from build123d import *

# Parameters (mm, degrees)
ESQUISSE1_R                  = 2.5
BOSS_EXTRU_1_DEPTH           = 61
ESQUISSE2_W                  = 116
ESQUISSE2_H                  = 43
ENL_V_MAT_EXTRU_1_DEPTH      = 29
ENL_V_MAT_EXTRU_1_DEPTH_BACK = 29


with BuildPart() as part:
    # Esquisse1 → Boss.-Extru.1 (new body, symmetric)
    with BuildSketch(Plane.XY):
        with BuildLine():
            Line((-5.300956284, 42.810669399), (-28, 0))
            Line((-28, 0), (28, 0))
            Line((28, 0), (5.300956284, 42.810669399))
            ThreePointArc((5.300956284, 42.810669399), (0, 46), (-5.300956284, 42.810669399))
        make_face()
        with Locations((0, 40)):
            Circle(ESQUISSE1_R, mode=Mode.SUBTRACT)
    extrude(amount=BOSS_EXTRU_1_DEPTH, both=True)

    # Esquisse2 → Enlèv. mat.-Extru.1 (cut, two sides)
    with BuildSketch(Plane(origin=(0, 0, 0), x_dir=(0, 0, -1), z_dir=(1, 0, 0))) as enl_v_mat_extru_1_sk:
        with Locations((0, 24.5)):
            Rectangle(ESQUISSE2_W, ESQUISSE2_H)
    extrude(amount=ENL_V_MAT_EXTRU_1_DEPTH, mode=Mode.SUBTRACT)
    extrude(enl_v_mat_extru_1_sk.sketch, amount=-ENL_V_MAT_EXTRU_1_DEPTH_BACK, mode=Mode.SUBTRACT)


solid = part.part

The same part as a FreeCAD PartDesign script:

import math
import FreeCAD as App
import Part
import Sketcher

V = App.Vector
Q = App.Units.Quantity

doc = App.newDocument("Part")
body = doc.addObject("PartDesign::Body", "Body")

# Sketch on XY plane
sketch1 = doc.addObject("Sketcher::SketchObject", "Sketch")
body.addObject(sketch1)
sketch1.AttachmentSupport = (doc.XY_Plane, [""])
sketch1.MapMode = "FlatFace"
sketch1.addGeometry([
    Part.LineSegment(V(-5.3, 42.8, 0), V(-28, 0, 0)),  # 0
    Part.LineSegment(V(-28, 0, 0), V(28, 0, 0)),  # 1
    Part.LineSegment(V(28, 0, 0), V(5.3, 42.8, 0)),  # 2
    Part.ArcOfCircle(Part.Circle(V(0, 40, 0), V(0, 0, 1), 6), math.radians(28), math.radians(152)),  # 3
    Part.Circle(V(0, 40, 0), V(0, 0, 1), 2.5),  # 4
], False)
sketch1.addConstraint([
    Sketcher.Constraint("Coincident", 0, 2, 1, 1),
    Sketcher.Constraint("Coincident", 1, 2, 2, 1),
    Sketcher.Constraint("Tangent", 2, 2, 3, 1),
    Sketcher.Constraint("Tangent", 3, 2, 0, 1),
    Sketcher.Constraint("Horizontal", 1),
    Sketcher.Constraint("Coincident", 4, 3, 3, 3),
    Sketcher.Constraint("Symmetric", 0, 2, 1, 2, -1, 1),
    Sketcher.Constraint("PointOnObject", 3, 3, -2),
    Sketcher.Constraint("Diameter", 4, Q("5 mm")),
    Sketcher.Constraint("Radius", 3, Q("6 mm")),
    Sketcher.Constraint("DistanceX", 1, 1, 1, 2, Q("56 mm")),
    Sketcher.Constraint("DistanceY", -1, 1, 3, 3, Q("40 mm")),
])
pad1 = doc.addObject("PartDesign::Pad", "Pad")
body.addObject(pad1)
pad1.Profile = sketch1
pad1.Length = 122
pad1.Midplane = True

# Sketch on YZ plane
sketch2 = doc.addObject("Sketcher::SketchObject", "Sketch001")
body.addObject(sketch2)
sketch2.AttachmentSupport = (doc.YZ_Plane, [""])
sketch2.MapMode = "FlatFace"
sketch2.addGeometry([
    Part.LineSegment(V(46, 58, 0), V(3, 58, 0)),
    Part.LineSegment(V(3, 58, 0), V(3, -58, 0)),
    Part.LineSegment(V(3, -58, 0), V(46, -58, 0)),
    Part.LineSegment(V(46, -58, 0), V(46, 58, 0)),
], False)
sketch2.addConstraint([
    Sketcher.Constraint("Coincident", 0, 2, 1, 1),
    Sketcher.Constraint("Coincident", 1, 2, 2, 1),
    Sketcher.Constraint("Coincident", 2, 2, 3, 1),
    Sketcher.Constraint("Coincident", 3, 2, 0, 1),
    Sketcher.Constraint("Horizontal", 0),
    Sketcher.Constraint("Vertical", 1),
    Sketcher.Constraint("Horizontal", 2),
    Sketcher.Constraint("Vertical", 3),
    Sketcher.Constraint("DistanceX", 0, 2, 0, 1, Q("43 mm")),
    Sketcher.Constraint("DistanceY", 1, 2, 1, 1, Q("116 mm")),
    Sketcher.Constraint("DistanceX", -1, 1, 0, 2, Q("3 mm")),
    Sketcher.Constraint("DistanceY", -1, 1, 0, 2, Q("58 mm")),
])
pocket1 = doc.addObject("PartDesign::Pocket", "Pocket")
body.addObject(pocket1)
pocket1.Profile = sketch2
pocket1.Type = "ThroughAll"
pocket1.Midplane = True

doc.recompute()
